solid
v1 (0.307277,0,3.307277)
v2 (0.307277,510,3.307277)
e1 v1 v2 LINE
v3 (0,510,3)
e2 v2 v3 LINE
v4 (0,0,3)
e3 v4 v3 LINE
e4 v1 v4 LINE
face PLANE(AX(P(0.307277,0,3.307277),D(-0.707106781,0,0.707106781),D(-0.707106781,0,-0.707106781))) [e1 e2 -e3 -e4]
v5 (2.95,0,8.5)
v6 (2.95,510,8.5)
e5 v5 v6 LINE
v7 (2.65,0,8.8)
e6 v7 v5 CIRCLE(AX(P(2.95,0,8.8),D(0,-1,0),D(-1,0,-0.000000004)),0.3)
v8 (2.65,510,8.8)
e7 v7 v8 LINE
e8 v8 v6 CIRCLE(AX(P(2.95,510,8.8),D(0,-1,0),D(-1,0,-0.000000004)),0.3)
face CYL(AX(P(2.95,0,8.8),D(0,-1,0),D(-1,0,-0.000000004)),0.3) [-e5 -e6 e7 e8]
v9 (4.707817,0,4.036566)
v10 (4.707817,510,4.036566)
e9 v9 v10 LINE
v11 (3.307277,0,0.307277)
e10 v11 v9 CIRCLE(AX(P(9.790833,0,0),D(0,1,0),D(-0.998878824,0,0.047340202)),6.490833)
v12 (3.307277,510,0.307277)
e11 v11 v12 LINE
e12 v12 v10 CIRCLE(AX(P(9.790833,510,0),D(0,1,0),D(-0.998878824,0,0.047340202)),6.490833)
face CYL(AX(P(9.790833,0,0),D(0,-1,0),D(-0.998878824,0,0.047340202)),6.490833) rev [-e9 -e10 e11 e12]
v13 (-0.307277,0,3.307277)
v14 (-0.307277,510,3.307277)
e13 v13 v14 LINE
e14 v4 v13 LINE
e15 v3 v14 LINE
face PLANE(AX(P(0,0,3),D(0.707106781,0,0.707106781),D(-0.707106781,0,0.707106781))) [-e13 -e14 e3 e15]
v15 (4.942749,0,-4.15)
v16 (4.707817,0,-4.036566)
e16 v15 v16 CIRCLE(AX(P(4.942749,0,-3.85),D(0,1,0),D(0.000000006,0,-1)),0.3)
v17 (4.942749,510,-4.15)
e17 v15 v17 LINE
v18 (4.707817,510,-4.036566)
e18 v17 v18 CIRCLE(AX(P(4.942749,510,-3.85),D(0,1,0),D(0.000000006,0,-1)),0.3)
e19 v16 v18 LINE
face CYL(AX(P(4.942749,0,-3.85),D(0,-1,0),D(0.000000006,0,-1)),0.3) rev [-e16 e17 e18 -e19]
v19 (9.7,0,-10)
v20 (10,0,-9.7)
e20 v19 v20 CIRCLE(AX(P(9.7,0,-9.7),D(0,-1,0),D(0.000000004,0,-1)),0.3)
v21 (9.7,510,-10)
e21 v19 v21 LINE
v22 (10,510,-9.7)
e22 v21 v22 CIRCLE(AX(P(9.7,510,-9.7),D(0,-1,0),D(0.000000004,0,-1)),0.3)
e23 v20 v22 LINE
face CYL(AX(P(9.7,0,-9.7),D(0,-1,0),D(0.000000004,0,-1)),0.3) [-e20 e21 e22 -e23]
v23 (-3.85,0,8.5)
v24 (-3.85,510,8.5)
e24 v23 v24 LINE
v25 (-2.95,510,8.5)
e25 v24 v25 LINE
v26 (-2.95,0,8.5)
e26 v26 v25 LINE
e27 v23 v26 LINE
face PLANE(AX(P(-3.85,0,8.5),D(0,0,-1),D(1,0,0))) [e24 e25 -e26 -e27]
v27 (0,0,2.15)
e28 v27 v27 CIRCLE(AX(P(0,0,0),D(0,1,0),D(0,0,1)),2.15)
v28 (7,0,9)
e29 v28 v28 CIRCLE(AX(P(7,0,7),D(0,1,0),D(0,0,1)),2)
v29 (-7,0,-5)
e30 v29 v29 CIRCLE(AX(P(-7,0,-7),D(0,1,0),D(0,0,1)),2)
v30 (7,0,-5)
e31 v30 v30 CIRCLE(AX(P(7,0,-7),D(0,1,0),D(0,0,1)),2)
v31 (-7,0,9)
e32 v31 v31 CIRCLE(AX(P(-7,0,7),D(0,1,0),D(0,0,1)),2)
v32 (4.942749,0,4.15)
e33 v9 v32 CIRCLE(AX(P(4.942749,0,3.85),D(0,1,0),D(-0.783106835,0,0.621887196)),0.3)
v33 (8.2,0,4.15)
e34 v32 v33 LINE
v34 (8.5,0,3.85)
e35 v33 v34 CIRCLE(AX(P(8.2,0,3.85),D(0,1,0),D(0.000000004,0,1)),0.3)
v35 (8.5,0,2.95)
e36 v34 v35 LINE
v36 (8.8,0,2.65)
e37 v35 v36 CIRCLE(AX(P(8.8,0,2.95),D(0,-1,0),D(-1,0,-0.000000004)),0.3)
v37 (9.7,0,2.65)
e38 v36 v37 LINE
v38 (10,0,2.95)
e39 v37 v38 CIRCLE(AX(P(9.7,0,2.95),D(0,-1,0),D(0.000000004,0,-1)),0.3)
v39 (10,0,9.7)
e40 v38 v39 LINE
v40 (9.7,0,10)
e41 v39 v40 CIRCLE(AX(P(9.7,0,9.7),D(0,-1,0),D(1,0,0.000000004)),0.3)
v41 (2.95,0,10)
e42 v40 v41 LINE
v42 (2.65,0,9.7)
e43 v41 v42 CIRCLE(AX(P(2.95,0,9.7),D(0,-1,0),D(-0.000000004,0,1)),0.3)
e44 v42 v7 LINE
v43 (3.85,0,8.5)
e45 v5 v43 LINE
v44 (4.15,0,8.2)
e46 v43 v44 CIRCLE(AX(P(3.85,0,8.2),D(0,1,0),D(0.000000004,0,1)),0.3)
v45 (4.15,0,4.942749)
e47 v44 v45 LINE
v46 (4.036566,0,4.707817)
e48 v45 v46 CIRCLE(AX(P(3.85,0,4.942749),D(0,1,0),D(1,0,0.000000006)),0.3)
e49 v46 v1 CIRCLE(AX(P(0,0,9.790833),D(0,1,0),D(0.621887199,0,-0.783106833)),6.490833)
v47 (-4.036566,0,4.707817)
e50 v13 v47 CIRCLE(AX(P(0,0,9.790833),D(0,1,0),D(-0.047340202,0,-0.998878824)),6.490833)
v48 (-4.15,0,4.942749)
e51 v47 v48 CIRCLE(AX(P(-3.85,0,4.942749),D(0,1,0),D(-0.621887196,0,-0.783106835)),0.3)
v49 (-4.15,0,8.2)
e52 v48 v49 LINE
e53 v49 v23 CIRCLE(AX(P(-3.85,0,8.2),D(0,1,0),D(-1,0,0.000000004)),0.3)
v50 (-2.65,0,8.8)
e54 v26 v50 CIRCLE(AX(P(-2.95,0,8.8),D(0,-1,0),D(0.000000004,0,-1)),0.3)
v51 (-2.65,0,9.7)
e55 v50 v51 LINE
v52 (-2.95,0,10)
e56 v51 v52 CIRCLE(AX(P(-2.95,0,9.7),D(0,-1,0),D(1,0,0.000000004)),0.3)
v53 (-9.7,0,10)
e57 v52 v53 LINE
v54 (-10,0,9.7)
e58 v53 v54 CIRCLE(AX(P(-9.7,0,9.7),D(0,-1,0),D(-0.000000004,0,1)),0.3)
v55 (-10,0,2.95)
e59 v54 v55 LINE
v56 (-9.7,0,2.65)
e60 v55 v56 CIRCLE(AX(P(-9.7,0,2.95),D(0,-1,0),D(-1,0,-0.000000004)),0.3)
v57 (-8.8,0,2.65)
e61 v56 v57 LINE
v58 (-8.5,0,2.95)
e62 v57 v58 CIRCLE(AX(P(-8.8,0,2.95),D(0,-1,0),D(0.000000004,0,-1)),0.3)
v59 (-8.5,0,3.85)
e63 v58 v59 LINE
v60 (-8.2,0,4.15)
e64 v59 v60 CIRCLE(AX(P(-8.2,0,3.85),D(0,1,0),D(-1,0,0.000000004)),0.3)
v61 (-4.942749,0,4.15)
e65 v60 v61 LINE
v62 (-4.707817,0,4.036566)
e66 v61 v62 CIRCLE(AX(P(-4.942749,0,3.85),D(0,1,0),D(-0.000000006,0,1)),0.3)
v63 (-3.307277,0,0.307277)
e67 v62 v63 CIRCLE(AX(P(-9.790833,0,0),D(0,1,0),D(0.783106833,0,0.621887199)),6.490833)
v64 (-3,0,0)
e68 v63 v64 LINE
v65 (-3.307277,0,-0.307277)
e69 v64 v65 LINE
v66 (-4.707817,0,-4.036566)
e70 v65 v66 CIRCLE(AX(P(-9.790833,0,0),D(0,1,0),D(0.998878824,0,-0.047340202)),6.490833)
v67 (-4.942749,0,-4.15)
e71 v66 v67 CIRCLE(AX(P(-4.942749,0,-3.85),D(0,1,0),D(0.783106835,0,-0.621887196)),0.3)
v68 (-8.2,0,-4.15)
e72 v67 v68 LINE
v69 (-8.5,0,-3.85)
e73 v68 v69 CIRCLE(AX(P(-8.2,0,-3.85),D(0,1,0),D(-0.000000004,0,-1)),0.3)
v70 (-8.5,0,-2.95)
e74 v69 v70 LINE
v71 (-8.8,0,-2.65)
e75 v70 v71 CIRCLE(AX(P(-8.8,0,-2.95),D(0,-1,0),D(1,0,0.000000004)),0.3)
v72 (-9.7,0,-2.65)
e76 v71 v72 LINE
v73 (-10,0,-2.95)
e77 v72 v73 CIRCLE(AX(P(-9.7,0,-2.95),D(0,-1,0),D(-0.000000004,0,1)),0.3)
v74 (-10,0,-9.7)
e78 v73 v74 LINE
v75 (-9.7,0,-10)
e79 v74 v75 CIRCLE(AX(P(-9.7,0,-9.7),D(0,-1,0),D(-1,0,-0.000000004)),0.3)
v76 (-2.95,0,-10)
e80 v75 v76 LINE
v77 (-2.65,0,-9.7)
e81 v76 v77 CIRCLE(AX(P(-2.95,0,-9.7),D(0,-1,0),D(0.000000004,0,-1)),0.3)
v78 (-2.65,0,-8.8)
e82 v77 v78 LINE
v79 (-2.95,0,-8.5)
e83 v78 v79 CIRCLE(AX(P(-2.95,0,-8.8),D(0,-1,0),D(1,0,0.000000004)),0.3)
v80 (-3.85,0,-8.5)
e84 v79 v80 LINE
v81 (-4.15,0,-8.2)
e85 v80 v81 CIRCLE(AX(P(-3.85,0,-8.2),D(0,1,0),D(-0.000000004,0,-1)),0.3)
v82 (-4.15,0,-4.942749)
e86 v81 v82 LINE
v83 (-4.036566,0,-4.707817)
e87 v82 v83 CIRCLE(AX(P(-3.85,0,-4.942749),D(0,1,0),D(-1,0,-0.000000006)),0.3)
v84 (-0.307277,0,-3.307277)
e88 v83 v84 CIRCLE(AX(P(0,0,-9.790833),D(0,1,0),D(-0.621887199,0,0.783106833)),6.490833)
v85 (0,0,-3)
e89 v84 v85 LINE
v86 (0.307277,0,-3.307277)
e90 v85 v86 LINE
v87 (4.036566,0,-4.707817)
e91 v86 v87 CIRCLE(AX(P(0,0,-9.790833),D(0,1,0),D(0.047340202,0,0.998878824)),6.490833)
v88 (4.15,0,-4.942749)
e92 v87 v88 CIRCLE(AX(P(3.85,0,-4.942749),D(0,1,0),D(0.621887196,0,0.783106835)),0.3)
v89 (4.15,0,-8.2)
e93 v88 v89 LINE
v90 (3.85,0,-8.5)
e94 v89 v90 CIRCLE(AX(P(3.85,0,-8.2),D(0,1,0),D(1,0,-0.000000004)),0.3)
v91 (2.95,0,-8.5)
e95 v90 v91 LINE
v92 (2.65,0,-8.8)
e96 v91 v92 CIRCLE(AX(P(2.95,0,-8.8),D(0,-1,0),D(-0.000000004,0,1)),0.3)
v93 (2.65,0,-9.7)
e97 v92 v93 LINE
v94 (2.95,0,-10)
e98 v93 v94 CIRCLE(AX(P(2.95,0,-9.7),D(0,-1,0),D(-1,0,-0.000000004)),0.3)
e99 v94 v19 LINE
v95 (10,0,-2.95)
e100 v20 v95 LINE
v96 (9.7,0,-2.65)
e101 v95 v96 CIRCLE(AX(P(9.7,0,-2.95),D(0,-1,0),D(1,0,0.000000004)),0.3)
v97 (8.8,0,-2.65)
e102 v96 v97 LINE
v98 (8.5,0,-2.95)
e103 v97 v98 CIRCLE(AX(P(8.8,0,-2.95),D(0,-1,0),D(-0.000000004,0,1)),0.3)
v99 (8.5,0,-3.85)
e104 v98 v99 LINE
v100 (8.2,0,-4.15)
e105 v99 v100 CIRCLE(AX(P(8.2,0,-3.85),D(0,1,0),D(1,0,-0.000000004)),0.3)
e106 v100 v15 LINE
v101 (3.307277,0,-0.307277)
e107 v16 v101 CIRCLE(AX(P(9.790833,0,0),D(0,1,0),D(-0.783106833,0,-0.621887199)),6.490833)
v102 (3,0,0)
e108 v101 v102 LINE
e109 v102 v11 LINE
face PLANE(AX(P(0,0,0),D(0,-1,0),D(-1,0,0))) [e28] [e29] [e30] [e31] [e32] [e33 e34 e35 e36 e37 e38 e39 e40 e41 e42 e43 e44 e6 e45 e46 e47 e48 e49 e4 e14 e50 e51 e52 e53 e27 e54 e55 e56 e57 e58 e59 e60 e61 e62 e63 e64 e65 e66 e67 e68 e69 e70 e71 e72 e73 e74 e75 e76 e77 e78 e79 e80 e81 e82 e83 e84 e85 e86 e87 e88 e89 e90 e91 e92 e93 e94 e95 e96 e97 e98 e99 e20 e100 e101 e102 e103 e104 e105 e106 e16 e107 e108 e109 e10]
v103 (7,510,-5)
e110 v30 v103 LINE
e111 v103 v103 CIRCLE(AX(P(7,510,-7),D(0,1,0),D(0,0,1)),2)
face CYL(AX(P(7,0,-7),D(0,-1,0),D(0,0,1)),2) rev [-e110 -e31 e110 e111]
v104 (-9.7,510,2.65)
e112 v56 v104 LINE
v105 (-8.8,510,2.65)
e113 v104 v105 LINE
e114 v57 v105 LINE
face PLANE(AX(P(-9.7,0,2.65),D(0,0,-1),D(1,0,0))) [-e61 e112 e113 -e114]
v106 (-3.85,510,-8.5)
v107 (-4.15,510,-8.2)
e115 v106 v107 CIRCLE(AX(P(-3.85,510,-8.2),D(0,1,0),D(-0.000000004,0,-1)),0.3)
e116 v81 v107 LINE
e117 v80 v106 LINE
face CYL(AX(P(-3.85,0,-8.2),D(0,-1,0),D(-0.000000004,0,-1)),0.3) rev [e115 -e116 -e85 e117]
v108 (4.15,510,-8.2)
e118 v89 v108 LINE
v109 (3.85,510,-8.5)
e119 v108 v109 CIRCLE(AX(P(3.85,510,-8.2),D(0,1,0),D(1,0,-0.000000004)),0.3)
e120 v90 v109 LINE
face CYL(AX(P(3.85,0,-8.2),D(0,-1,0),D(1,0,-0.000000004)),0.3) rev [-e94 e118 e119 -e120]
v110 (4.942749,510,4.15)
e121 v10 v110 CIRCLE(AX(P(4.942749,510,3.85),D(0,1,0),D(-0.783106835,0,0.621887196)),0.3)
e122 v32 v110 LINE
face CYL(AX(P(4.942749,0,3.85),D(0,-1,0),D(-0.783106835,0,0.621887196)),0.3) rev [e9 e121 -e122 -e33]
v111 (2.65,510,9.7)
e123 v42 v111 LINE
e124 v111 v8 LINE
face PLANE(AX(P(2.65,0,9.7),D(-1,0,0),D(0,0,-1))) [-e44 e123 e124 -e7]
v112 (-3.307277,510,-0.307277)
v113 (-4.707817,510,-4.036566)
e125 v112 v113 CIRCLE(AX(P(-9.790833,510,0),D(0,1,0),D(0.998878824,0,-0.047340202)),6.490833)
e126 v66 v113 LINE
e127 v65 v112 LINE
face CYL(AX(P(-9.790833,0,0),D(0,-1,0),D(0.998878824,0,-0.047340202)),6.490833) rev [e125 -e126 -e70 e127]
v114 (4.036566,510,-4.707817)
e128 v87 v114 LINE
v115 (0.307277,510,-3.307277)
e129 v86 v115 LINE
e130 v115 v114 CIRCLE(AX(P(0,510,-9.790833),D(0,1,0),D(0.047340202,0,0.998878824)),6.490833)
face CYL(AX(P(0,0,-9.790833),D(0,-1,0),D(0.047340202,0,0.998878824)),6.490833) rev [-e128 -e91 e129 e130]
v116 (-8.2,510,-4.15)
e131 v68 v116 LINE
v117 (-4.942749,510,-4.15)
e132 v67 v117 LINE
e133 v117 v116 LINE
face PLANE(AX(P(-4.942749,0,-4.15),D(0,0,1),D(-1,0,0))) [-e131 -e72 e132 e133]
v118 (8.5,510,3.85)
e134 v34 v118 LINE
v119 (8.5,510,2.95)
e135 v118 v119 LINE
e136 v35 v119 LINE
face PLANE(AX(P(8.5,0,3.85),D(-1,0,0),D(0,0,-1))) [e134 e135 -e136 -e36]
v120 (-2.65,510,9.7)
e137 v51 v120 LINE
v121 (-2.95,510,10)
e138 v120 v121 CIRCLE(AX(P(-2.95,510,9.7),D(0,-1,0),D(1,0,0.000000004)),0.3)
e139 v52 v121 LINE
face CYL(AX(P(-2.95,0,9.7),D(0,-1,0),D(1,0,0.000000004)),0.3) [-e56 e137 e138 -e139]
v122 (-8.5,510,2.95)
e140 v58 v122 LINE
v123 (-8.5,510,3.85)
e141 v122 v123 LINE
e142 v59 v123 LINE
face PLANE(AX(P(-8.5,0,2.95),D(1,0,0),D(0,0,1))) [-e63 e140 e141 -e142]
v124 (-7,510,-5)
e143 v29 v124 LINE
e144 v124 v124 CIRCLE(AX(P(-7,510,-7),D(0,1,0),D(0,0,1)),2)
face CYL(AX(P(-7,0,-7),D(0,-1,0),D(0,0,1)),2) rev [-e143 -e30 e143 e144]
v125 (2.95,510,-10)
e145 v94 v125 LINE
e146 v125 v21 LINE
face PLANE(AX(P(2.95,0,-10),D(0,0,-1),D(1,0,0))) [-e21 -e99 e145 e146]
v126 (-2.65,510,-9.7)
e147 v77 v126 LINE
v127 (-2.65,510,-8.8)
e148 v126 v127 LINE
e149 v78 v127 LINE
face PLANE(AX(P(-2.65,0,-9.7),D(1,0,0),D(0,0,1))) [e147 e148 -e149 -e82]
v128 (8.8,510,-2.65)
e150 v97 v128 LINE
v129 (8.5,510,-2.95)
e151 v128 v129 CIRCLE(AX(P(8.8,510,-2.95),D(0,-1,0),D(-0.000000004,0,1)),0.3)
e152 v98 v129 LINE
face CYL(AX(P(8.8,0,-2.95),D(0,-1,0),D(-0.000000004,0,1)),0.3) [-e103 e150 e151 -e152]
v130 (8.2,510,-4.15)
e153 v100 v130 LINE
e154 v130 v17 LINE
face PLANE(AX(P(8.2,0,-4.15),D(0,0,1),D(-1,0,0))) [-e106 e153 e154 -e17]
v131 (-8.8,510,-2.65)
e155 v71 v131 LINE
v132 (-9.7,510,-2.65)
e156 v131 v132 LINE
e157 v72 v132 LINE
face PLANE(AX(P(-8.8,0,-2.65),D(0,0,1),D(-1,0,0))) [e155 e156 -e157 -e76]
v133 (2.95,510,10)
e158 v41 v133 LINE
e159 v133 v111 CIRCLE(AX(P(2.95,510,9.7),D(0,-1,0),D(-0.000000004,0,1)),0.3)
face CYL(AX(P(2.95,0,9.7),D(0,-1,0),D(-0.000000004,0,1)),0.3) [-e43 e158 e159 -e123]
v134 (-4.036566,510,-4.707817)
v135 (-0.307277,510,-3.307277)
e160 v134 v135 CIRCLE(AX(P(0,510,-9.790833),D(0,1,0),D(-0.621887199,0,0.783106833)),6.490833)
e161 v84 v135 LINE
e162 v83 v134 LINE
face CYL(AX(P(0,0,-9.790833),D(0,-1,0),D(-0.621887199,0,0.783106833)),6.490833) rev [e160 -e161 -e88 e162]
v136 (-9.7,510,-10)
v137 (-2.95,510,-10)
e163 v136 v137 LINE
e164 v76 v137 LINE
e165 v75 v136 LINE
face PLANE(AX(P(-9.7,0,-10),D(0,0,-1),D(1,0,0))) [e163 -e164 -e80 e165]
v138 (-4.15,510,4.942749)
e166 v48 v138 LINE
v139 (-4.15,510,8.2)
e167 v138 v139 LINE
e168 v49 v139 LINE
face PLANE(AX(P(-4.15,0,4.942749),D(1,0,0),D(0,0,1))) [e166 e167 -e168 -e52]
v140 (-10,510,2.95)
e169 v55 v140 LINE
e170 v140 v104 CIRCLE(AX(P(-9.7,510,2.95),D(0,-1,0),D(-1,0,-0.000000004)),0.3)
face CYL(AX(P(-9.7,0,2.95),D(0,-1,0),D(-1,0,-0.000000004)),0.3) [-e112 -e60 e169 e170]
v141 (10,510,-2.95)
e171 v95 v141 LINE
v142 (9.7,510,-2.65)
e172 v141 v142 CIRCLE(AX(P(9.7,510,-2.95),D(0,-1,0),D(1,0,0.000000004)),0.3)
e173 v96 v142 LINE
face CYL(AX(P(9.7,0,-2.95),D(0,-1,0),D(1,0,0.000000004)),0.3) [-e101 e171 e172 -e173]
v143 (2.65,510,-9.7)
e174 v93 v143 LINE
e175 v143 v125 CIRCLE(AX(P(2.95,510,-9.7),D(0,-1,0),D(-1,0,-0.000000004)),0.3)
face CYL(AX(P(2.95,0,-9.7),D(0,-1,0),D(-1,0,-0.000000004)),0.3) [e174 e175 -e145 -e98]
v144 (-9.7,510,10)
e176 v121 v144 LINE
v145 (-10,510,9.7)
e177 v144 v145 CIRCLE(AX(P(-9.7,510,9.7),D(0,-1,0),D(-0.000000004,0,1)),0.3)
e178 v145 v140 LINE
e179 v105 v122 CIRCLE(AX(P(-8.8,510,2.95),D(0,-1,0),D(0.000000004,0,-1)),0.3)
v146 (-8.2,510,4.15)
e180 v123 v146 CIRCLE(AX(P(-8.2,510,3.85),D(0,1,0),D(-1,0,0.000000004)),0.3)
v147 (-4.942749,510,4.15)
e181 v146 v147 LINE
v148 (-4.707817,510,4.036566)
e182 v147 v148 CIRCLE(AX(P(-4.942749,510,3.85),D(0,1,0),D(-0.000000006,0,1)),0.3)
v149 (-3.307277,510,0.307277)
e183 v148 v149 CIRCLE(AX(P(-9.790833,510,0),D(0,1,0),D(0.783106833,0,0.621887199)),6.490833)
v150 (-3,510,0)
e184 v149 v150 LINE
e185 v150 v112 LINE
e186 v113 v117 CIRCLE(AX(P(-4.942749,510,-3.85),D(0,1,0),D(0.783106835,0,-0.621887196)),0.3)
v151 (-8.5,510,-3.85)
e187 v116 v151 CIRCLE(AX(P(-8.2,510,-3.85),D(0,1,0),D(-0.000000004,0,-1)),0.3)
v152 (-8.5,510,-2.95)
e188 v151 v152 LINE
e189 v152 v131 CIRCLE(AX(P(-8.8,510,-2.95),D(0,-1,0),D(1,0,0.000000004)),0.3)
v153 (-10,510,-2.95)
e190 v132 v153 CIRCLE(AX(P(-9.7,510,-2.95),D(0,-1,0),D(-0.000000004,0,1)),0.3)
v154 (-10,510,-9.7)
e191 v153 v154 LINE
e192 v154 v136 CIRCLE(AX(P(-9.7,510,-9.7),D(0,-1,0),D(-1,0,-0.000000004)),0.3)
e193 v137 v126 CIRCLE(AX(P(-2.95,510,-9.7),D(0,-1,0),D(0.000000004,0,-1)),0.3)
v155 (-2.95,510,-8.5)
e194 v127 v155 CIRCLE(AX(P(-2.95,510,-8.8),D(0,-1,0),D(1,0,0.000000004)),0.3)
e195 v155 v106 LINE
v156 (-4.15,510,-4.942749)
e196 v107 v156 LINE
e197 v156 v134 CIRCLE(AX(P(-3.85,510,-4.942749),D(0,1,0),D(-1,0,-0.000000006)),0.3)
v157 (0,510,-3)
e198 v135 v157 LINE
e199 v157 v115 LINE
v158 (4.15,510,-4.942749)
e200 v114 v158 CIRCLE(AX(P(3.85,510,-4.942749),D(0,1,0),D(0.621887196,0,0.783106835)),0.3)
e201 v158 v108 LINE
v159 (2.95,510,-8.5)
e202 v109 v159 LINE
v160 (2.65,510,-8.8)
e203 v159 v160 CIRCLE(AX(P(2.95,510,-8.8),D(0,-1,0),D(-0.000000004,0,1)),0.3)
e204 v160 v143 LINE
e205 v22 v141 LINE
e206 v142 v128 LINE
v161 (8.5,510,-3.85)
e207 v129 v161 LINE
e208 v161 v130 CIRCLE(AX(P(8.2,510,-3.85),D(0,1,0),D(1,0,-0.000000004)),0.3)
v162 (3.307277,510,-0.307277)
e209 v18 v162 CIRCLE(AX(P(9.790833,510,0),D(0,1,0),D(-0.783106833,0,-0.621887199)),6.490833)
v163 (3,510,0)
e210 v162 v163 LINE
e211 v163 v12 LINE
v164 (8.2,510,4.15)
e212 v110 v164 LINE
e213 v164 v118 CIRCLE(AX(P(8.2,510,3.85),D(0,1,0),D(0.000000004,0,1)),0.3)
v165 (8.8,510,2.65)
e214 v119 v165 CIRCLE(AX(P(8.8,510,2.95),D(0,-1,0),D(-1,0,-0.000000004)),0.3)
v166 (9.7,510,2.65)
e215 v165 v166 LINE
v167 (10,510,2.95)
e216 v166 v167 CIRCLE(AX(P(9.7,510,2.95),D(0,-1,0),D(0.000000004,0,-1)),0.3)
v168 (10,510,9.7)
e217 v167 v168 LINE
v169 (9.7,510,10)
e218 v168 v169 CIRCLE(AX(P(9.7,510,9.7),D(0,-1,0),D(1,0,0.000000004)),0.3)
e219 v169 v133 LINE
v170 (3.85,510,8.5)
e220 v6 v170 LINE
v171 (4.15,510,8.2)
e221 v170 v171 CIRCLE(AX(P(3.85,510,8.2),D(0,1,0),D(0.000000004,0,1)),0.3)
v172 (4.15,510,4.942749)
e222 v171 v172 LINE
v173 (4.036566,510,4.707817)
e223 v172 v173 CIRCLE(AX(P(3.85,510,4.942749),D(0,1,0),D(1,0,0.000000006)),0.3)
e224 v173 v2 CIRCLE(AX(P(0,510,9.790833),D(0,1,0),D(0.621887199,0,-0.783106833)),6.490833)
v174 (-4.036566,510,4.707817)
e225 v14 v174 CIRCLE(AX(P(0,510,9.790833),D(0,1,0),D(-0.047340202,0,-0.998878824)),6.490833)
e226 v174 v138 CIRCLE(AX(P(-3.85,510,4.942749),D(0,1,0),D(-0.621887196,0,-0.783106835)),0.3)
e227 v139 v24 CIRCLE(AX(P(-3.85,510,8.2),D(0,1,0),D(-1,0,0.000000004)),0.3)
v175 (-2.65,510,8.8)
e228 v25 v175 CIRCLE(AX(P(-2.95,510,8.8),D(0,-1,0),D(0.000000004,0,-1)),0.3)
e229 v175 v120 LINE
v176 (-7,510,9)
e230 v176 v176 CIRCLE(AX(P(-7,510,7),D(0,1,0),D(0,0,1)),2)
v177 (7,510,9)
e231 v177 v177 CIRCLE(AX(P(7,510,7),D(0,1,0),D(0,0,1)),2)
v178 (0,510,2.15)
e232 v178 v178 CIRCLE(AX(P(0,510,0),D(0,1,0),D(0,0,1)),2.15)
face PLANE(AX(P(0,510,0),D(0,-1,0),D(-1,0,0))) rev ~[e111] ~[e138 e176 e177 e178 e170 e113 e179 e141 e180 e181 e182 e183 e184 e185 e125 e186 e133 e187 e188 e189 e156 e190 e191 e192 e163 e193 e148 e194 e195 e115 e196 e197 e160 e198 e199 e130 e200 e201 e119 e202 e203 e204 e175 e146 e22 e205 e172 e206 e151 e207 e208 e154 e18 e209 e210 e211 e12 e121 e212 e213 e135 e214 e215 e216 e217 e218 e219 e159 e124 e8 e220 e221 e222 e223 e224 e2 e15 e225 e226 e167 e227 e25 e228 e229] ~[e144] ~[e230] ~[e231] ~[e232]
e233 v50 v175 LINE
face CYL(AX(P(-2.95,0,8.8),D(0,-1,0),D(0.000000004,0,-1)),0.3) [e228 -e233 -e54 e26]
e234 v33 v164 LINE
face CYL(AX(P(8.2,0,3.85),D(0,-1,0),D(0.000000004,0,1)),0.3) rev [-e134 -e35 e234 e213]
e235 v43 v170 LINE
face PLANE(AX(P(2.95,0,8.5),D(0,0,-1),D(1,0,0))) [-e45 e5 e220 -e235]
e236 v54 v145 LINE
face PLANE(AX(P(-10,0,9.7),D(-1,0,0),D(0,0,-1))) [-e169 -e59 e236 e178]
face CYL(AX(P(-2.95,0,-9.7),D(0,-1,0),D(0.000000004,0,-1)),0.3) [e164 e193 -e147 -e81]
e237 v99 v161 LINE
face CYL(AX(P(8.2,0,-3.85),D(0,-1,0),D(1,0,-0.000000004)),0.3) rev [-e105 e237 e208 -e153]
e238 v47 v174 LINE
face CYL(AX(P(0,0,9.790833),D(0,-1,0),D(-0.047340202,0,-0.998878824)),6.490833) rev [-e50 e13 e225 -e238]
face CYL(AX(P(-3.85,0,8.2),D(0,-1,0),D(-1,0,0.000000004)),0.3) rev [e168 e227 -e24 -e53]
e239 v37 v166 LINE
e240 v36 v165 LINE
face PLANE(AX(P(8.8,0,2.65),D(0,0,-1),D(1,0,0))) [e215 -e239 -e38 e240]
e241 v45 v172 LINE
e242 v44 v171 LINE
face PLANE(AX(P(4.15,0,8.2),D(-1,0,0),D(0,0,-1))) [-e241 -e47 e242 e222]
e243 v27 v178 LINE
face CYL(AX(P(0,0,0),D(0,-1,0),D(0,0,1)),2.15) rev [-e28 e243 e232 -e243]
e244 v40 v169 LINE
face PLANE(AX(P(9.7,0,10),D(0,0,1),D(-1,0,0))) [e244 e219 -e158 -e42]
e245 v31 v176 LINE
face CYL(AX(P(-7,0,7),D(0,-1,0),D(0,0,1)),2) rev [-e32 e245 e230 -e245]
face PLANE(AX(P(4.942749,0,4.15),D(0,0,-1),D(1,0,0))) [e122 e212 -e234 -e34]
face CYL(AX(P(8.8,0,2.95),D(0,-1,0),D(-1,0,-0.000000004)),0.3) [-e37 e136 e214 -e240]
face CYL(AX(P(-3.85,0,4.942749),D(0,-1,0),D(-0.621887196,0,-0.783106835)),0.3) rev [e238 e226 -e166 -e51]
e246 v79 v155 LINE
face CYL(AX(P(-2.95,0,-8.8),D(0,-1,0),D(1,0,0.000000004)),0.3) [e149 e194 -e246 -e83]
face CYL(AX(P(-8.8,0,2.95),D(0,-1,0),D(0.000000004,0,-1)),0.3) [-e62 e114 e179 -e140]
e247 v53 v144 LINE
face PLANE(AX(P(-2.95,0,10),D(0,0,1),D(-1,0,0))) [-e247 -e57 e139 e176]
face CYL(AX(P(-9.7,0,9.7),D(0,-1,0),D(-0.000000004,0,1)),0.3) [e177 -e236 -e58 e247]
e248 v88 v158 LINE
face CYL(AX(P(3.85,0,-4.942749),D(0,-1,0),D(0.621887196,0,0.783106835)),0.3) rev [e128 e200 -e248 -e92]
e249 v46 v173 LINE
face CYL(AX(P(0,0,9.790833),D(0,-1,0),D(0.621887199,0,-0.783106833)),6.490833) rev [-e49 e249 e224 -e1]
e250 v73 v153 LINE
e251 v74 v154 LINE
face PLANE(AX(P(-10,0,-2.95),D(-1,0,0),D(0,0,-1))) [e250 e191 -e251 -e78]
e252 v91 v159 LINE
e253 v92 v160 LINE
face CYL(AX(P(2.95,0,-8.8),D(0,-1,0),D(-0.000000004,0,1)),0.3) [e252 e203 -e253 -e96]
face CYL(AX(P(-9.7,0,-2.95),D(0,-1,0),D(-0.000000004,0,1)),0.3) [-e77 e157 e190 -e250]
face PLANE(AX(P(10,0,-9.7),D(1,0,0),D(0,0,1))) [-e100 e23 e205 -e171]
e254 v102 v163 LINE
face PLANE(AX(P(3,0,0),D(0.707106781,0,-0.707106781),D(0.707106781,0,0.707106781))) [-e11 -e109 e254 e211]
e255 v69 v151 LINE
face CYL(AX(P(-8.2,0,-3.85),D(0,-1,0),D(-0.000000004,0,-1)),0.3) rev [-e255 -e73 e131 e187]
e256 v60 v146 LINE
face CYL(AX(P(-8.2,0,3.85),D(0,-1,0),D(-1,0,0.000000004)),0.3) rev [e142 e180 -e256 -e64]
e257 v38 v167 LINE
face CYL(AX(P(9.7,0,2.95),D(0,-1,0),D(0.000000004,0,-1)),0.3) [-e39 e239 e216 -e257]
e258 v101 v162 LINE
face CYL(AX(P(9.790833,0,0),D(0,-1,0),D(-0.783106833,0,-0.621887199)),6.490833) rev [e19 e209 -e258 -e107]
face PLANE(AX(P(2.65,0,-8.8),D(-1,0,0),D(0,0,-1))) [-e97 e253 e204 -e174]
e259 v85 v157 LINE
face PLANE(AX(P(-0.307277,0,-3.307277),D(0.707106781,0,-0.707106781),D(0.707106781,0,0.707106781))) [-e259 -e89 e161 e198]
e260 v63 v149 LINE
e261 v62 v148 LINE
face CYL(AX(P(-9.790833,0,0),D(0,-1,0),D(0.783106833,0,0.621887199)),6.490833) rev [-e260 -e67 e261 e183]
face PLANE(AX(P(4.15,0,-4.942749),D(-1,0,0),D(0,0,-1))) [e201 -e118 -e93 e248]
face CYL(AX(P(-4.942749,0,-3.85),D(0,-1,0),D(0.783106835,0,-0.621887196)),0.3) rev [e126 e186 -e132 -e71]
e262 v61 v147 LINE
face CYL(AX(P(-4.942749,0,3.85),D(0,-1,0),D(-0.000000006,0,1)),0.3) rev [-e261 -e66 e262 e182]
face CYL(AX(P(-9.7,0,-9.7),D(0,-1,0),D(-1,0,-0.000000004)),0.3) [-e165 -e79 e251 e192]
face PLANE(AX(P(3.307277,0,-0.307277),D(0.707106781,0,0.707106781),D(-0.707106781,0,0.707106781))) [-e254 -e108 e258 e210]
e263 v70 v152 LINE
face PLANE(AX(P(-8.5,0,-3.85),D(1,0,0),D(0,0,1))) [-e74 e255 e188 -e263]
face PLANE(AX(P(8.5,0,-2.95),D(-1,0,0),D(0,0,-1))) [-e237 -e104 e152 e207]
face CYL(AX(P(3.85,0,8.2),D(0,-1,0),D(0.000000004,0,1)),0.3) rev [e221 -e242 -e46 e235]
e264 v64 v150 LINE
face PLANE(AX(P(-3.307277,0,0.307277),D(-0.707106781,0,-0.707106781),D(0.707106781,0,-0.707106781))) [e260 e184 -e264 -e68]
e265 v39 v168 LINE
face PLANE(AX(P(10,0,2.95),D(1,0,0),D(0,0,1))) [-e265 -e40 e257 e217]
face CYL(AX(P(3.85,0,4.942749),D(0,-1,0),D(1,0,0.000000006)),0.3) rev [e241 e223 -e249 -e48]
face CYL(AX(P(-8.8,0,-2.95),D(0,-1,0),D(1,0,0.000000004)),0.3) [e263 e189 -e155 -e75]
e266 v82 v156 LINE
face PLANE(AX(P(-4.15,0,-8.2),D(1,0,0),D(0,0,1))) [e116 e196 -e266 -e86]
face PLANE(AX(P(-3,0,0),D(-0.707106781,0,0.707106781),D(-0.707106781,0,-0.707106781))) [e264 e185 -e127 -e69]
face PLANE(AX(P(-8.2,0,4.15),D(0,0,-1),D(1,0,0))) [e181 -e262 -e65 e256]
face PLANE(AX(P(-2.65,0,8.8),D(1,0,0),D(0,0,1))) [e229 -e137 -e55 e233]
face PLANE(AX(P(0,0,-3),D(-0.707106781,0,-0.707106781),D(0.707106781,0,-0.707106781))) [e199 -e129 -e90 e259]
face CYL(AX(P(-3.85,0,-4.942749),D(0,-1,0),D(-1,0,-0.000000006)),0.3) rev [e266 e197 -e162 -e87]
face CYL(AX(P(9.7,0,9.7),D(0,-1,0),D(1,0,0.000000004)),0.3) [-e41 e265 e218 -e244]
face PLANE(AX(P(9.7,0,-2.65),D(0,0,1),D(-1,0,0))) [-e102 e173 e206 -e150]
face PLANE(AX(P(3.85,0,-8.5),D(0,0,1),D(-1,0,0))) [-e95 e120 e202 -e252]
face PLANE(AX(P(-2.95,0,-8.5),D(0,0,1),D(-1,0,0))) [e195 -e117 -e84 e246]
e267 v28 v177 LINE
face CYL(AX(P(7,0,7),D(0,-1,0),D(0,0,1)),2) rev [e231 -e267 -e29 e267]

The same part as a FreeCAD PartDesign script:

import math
import FreeCAD as App
import Part
import Sketcher
from FreeCAD import Vector

doc = App.newDocument("Part")
params = doc.addObject("Spreadsheet::Sheet", "Params")
for row, (alias, value) in enumerate([
    ("sketch1_diameter", "4 mm"),
    ("sketch1_diameter2", "4.3 mm"),
    ("sketch1_radius", "0.3 mm"),
    ("sketch1_width", "0.9 mm"),
    ("sketch1_width2", "6.75 mm"),
    ("pad1_length", "510 mm"),
], start=1):
    params.set(f"A{row}", alias)
    params.set(f"B{row}", "=" + value)
    params.setAlias(f"B{row}", alias)

body = doc.addObject("PartDesign::Body", "Body")

sketch1 = body.newObject("Sketcher::SketchObject", "Sketch")
sketch1.AttachmentSupport = (doc.getObject("XZ_Plane"), [""])
sketch1.MapMode = "FlatFace"
sketch1.addGeometry(Part.LineSegment(Vector(4.15, -8.2, 0), Vector(4.15, -4.94, 0)), False)
sketch1.addGeometry(Part.ArcOfCircle(Part.Circle(Vector(3.85, -4.94, 0), Vector(0, 0, 1), 0.3), math.radians(0), math.radians(52)), False)
sketch1.addGeometry(Part.ArcOfCircle(Part.Circle(Vector(0, -9.79, 0), Vector(0, 0, 1), 6.49), math.radians(52), math.radians(87)), False)
sketch1.addGeometry(Part.LineSegment(Vector(0.31, -3.31, 0), Vector(0, -3, 0)), False)
sketch1.addGeometry(Part.LineSegment(Vector(0, -3, 0), Vector(-0.31, -3.31, 0)), False)
sketch1.addGeometry(Part.ArcOfCircle(Part.Circle(Vector(0, -9.79, 0), Vector(0, 0, 1), 6.49), math.radians(93), math.radians(128)), False)
sketch1.addGeometry(Part.ArcOfCircle(Part.Circle(Vector(-3.85, -4.94, 0), Vector(0, 0, 1), 0.3), math.radians(128), math.radians(180)), False)
sketch1.addGeometry(Part.LineSegment(Vector(-4.15, -4.94, 0), Vector(-4.15, -8.2, 0)), False)
sketch1.addGeometry(Part.ArcOfCircle(Part.Circle(Vector(-3.85, -8.2, 0), Vector(0, 0, 1), 0.3), math.radians(-180), math.radians(-90)), False)
sketch1.addGeometry(Part.LineSegment(Vector(-3.85, -8.5, 0), Vector(-2.95, -8.5, 0)), False)
sketch1.addGeometry(Part.ArcOfCircle(Part.Circle(Vector(-2.95, -8.8, 0), Vector(0, 0, 1), 0.3), math.radians(0), math.radians(90)), False)
sketch1.addGeometry(Part.LineSegment(Vector(-2.65, -8.8, 0), Vector(-2.65, -9.7, 0)), False)
sketch1.addGeometry(Part.ArcOfCircle(Part.Circle(Vector(-2.95, -9.7, 0), Vector(0, 0, 1), 0.3), math.radians(-90), math.radians(0)), False)
sketch1.addGeometry(Part.LineSegment(Vector(-2.95, -10, 0), Vector(-9.7, -10, 0)), False)
sketch1.addGeometry(Part.ArcOfCircle(Part.Circle(Vector(-9.7, -9.7, 0), Vector(0, 0, 1), 0.3), math.radians(-180), math.radians(-90)), False)
sketch1.addGeometry(Part.LineSegment(Vector(-10, -9.7, 0), Vector(-10, -2.95, 0)), False)
sketch1.addGeometry(Part.ArcOfCircle(Part.Circle(Vector(-9.7, -2.95, 0), Vector(0, 0, 1), 0.3), math.radians(90), math.radians(180)), False)
sketch1.addGeometry(Part.LineSegment(Vector(-9.7, -2.65, 0), Vector(-8.8, -2.65, 0)), False)
sketch1.addGeometry(Part.ArcOfCircle(Part.Circle(Vector(-8.8, -2.95, 0), Vector(0, 0, 1), 0.3), math.radians(0), math.radians(90)), False)
sketch1.addGeometry(Part.LineSegment(Vector(-8.5, -2.95, 0), Vector(-8.5, -3.85, 0)), False)
sketch1.addGeometry(Part.ArcOfCircle(Part.Circle(Vector(-8.2, -3.85, 0), Vector(0, 0, 1), 0.3), math.radians(-180), math.radians(-90)), False)
sketch1.addGeometry(Part.LineSegment(Vector(-8.2, -4.15, 0), Vector(-4.94, -4.15, 0)), False)
sketch1.addGeometry(Part.ArcOfCircle(Part.Circle(Vector(-4.94, -3.85, 0), Vector(0, 0, 1), 0.3), math.radians(-90), math.radians(-38)), False)
sketch1.addGeometry(Part.ArcOfCircle(Part.Circle(Vector(-9.79, 0, 0), Vector(0, 0, 1), 6.49), math.radians(-38), math.radians(-3)), False)
sketch1.addGeometry(Part.LineSegment(Vector(-3.31, -0.31, 0), Vector(-3, 0, 0)), False)
sketch1.addGeometry(Part.LineSegment(Vector(-3, 0, 0), Vector(-3.31, 0.31, 0)), False)
sketch1.addGeometry(Part.ArcOfCircle(Part.Circle(Vector(-9.79, 0, 0), Vector(0, 0, 1), 6.49), math.radians(3), math.radians(38)), False)
sketch1.addGeometry(Part.ArcOfCircle(Part.Circle(Vector(-4.94, 3.85, 0), Vector(0, 0, 1), 0.3), math.radians(38), math.radians(90)), False)
sketch1.addGeometry(Part.LineSegment(Vector(-4.94, 4.15, 0), Vector(-8.2, 4.15, 0)), False)
sketch1.addGeometry(Part.ArcOfCircle(Part.Circle(Vector(-8.2, 3.85, 0), Vector(0, 0, 1), 0.3), math.radians(90), math.radians(180)), False)
sketch1.addGeometry(Part.LineSegment(Vector(-8.5, 3.85, 0), Vector(-8.5, 2.95, 0)), False)
sketch1.addGeometry(Part.ArcOfCircle(Part.Circle(Vector(-8.8, 2.95, 0), Vector(0, 0, 1), 0.3), math.radians(-90), math.radians(0)), False)
sketch1.addGeometry(Part.LineSegment(Vector(-8.8, 2.65, 0), Vector(-9.7, 2.65, 0)), False)
sketch1.addGeometry(Part.ArcOfCircle(Part.Circle(Vector(-9.7, 2.95, 0), Vector(0, 0, 1), 0.3), math.radians(-180), math.radians(-90)), False)
sketch1.addGeometry(Part.LineSegment(Vector(-10, 2.95, 0), Vector(-10, 9.7, 0)), False)
sketch1.addGeometry(Part.ArcOfCircle(Part.Circle(Vector(-9.7, 9.7, 0), Vector(0, 0, 1), 0.3), math.radians(90), math.radians(180)), False)
sketch1.addGeometry(Part.LineSegment(Vector(-9.7, 10, 0), Vector(-2.95, 10, 0)), False)
sketch1.addGeometry(Part.ArcOfCircle(Part.Circle(Vector(-2.95, 9.7, 0), Vector(0, 0, 1), 0.3), math.radians(0), math.radians(90)), False)
sketch1.addGeometry(Part.LineSegment(Vector(-2.65, 9.7, 0), Vector(-2.65, 8.8, 0)), False)
sketch1.addGeometry(Part.ArcOfCircle(Part.Circle(Vector(-2.95, 8.8, 0), Vector(0, 0, 1), 0.3), math.radians(-90), math.radians(0)), False)
sketch1.addGeometry(Part.LineSegment(Vector(-2.95, 8.5, 0), Vector(-3.85, 8.5, 0)), False)
sketch1.addGeometry(Part.ArcOfCircle(Part.Circle(Vector(-3.85, 8.2, 0), Vector(0, 0, 1), 0.3), math.radians(90), math.radians(180)), False)
sketch1.addGeometry(Part.LineSegment(Vector(-4.15, 8.2, 0), Vector(-4.15, 4.94, 0)), False)
sketch1.addGeometry(Part.ArcOfCircle(Part.Circle(Vector(-3.85, 4.94, 0), Vector(0, 0, 1), 0.3), math.radians(180), math.radians(232)), False)
sketch1.addGeometry(Part.ArcOfCircle(Part.Circle(Vector(0, 9.79, 0), Vector(0, 0, 1), 6.49), math.radians(-128), math.radians(-93)), False)
sketch1.addGeometry(Part.LineSegment(Vector(-0.31, 3.31, 0), Vector(0, 3, 0)), False)
sketch1.addGeometry(Part.LineSegment(Vector(0, 3, 0), Vector(0.31, 3.31, 0)), False)
sketch1.addGeometry(Part.ArcOfCircle(Part.Circle(Vector(0, 9.79, 0), Vector(0, 0, 1), 6.49), math.radians(-87), math.radians(-52)), False)
sketch1.addGeometry(Part.ArcOfCircle(Part.Circle(Vector(3.85, 4.94, 0), Vector(0, 0, 1), 0.3), math.radians(-52), math.radians(0)), False)
sketch1.addGeometry(Part.LineSegment(Vector(4.15, 4.94, 0), Vector(4.15, 8.2, 0)), False)
sketch1.addGeometry(Part.ArcOfCircle(Part.Circle(Vector(3.85, 8.2, 0), Vector(0, 0, 1), 0.3), math.radians(0), math.radians(90)), False)
sketch1.addGeometry(Part.LineSegment(Vector(3.85, 8.5, 0), Vector(2.95, 8.5, 0)), False)
sketch1.addGeometry(Part.ArcOfCircle(Part.Circle(Vector(2.95, 8.8, 0), Vector(0, 0, 1), 0.3), math.radians(-180), math.radians(-90)), False)
sketch1.addGeometry(Part.LineSegment(Vector(2.65, 8.8, 0), Vector(2.65, 9.7, 0)), False)
sketch1.addGeometry(Part.ArcOfCircle(Part.Circle(Vector(2.95, 9.7, 0), Vector(0, 0, 1), 0.3), math.radians(90), math.radians(180)), False)
sketch1.addGeometry(Part.LineSegment(Vector(2.95, 10, 0), Vector(9.7, 10, 0)), False)
sketch1.addGeometry(Part.ArcOfCircle(Part.Circle(Vector(9.7, 9.7, 0), Vector(0, 0, 1), 0.3), math.radians(0), math.radians(90)), False)
sketch1.addGeometry(Part.LineSegment(Vector(10, 9.7, 0), Vector(10, 2.95, 0)), False)
sketch1.addGeometry(Part.ArcOfCircle(Part.Circle(Vector(9.7, 2.95, 0), Vector(0, 0, 1), 0.3), math.radians(-90), math.radians(0)), False)
sketch1.addGeometry(Part.LineSegment(Vector(9.7, 2.65, 0), Vector(8.8, 2.65, 0)), False)
sketch1.addGeometry(Part.ArcOfCircle(Part.Circle(Vector(8.8, 2.95, 0), Vector(0, 0, 1), 0.3), math.radians(-180), math.radians(-90)), False)
sketch1.addGeometry(Part.LineSegment(Vector(8.5, 2.95, 0), Vector(8.5, 3.85, 0)), False)
sketch1.addGeometry(Part.ArcOfCircle(Part.Circle(Vector(8.2, 3.85, 0), Vector(0, 0, 1), 0.3), math.radians(0), math.radians(90)), False)
sketch1.addGeometry(Part.LineSegment(Vector(8.2, 4.15, 0), Vector(4.94, 4.15, 0)), False)
sketch1.addGeometry(Part.ArcOfCircle(Part.Circle(Vector(4.94, 3.85, 0), Vector(0, 0, 1), 0.3), math.radians(90), math.radians(142)), False)
sketch1.addGeometry(Part.ArcOfCircle(Part.Circle(Vector(9.79, 0, 0), Vector(0, 0, 1), 6.49), math.radians(142), math.radians(177)), False)
sketch1.addGeometry(Part.LineSegment(Vector(3.31, 0.31, 0), Vector(3, 0, 0)), False)
sketch1.addGeometry(Part.LineSegment(Vector(3, 0, 0), Vector(3.31, -0.31, 0)), False)
sketch1.addGeometry(Part.ArcOfCircle(Part.Circle(Vector(9.79, 0, 0), Vector(0, 0, 1), 6.49), math.radians(-177), math.radians(-142)), False)
sketch1.addGeometry(Part.ArcOfCircle(Part.Circle(Vector(4.94, -3.85, 0), Vector(0, 0, 1), 0.3), math.radians(-142), math.radians(-90)), False)
sketch1.addGeometry(Part.LineSegment(Vector(4.94, -4.15, 0), Vector(8.2, -4.15, 0)), False)
sketch1.addGeometry(Part.ArcOfCircle(Part.Circle(Vector(8.2, -3.85, 0), Vector(0, 0, 1), 0.3), math.radians(-90), math.radians(0)), False)
sketch1.addGeometry(Part.LineSegment(Vector(8.5, -3.85, 0), Vector(8.5, -2.95, 0)), False)
sketch1.addGeometry(Part.ArcOfCircle(Part.Circle(Vector(8.8, -2.95, 0), Vector(0, 0, 1), 0.3), math.radians(90), math.radians(180)), False)
sketch1.addGeometry(Part.LineSegment(Vector(8.8, -2.65, 0), Vector(9.7, -2.65, 0)), False)
sketch1.addGeometry(Part.ArcOfCircle(Part.Circle(Vector(9.7, -2.95, 0), Vector(0, 0, 1), 0.3), math.radians(0), math.radians(90)), False)
sketch1.addGeometry(Part.LineSegment(Vector(10, -2.95, 0), Vector(10, -9.7, 0)), False)
sketch1.addGeometry(Part.ArcOfCircle(Part.Circle(Vector(9.7, -9.7, 0), Vector(0, 0, 1), 0.3), math.radians(-90), math.radians(0)), False)
sketch1.addGeometry(Part.LineSegment(Vector(9.7, -10, 0), Vector(2.95, -10, 0)), False)
sketch1.addGeometry(Part.ArcOfCircle(Part.Circle(Vector(2.95, -9.7, 0), Vector(0, 0, 1), 0.3), math.radians(-180), math.radians(-90)), False)
sketch1.addGeometry(Part.LineSegment(Vector(2.65, -9.7, 0), Vector(2.65, -8.8, 0)), False)
sketch1.addGeometry(Part.ArcOfCircle(Part.Circle(Vector(2.95, -8.8, 0), Vector(0, 0, 1), 0.3), math.radians(90), math.radians(180)), False)
sketch1.addGeometry(Part.LineSegment(Vector(2.95, -8.5, 0), Vector(3.85, -8.5, 0)), False)
sketch1.addGeometry(Part.ArcOfCircle(Part.Circle(Vector(3.85, -8.2, 0), Vector(0, 0, 1), 0.3), math.radians(-90), math.radians(0)), False)
sketch1.addGeometry(Part.Circle(Vector(7, 7, 0), Vector(0, 0, 1), 2), False)
sketch1.addGeometry(Part.Circle(Vector(-7, 7, 0), Vector(0, 0, 1), 2), False)
sketch1.addGeometry(Part.Circle(Vector(7, -7, 0), Vector(0, 0, 1), 2), False)
sketch1.addGeometry(Part.Circle(Vector(0, 0, 0), Vector(0, 0, 1), 2.15), False)
sketch1.addGeometry(Part.Circle(Vector(-7, -7, 0), Vector(0, 0, 1), 2), False)
sketch1.addConstraint(Sketcher.Constraint("Tangent", 0, 2, 1, 1))
sketch1.addConstraint(Sketcher.Constraint("Tangent", 1, 2, 2, 1))
sketch1.addConstraint(Sketcher.Constraint("Coincident", 2, 2, 3, 1))
sketch1.addConstraint(Sketcher.Constraint("Coincident", 3, 2, 4, 1))
sketch1.addConstraint(Sketcher.Constraint("Coincident", 4, 2, 5, 1))
sketch1.addConstraint(Sketcher.Constraint("Tangent", 5, 2, 6, 1))
sketch1.addConstraint(Sketcher.Constraint("Tangent", 6, 2, 7, 1))
sketch1.addConstraint(Sketcher.Constraint("Tangent", 7, 2, 8, 1))
sketch1.addConstraint(Sketcher.Constraint("Tangent", 8, 2, 9, 1))
sketch1.addConstraint(Sketcher.Constraint("Tangent", 9, 2, 10, 2))
sketch1.addConstraint(Sketcher.Constraint("Tangent", 10, 1, 11, 1))
sketch1.addConstraint(Sketcher.Constraint("Tangent", 11, 2, 12, 2))
sketch1.addConstraint(Sketcher.Constraint("Tangent", 12, 1, 13, 1))
sketch1.addConstraint(Sketcher.Constraint("Tangent", 13, 2, 14, 2))
sketch1.addConstraint(Sketcher.Constraint("Tangent", 14, 1, 15, 1))
sketch1.addConstraint(Sketcher.Constraint("Tangent", 15, 2, 16, 2))
sketch1.addConstraint(Sketcher.Constraint("Tangent", 16, 1, 17, 1))
sketch1.addConstraint(Sketcher.Constraint("Tangent", 17, 2, 18, 2))
sketch1.addConstraint(Sketcher.Constraint("Tangent", 18, 1, 19, 1))
sketch1.addConstraint(Sketcher.Constraint("Tangent", 19, 2, 20, 1))
sketch1.addConstraint(Sketcher.Constraint("Tangent", 20, 2, 21, 1))
sketch1.addConstraint(Sketcher.Constraint("Tangent", 21, 2, 22, 1))
sketch1.addConstraint(Sketcher.Constraint("Tangent", 22, 2, 23, 1))
sketch1.addConstraint(Sketcher.Constraint("Coincident", 23, 2, 24, 1))
sketch1.addConstraint(Sketcher.Constraint("Coincident", 24, 2, 25, 1))
sketch1.addConstraint(Sketcher.Constraint("Coincident", 25, 2, 26, 1))
sketch1.addConstraint(Sketcher.Constraint("Tangent", 26, 2, 27, 1))
sketch1.addConstraint(Sketcher.Constraint("Tangent", 27, 2, 28, 1))
sketch1.addConstraint(Sketcher.Constraint("Tangent", 28, 2, 29, 1))
sketch1.addConstraint(Sketcher.Constraint("Tangent", 29, 2, 30, 1))
sketch1.addConstraint(Sketcher.Constraint("Tangent", 30, 2, 31, 2))
sketch1.addConstraint(Sketcher.Constraint("Tangent", 31, 1, 32, 1))
sketch1.addConstraint(Sketcher.Constraint("Tangent", 32, 2, 33, 2))
sketch1.addConstraint(Sketcher.Constraint("Tangent", 33, 1, 34, 1))
sketch1.addConstraint(Sketcher.Constraint("Tangent", 34, 2, 35, 2))
sketch1.addConstraint(Sketcher.Constraint("Tangent", 35, 1, 36, 1))
sketch1.addConstraint(Sketcher.Constraint("Tangent", 36, 2, 37, 2))
sketch1.addConstraint(Sketcher.Constraint("Tangent", 37, 1, 38, 1))
sketch1.addConstraint(Sketcher.Constraint("Tangent", 38, 2, 39, 2))
sketch1.addConstraint(Sketcher.Constraint("Tangent", 39, 1, 40, 1))
sketch1.addConstraint(Sketcher.Constraint("Tangent", 40, 2, 41, 1))
sketch1.addConstraint(Sketcher.Constraint("Tangent", 41, 2, 42, 1))
sketch1.addConstraint(Sketcher.Constraint("Tangent", 42, 2, 43, 1))
sketch1.addConstraint(Sketcher.Constraint("Tangent", 43, 2, 44, 1))
sketch1.addConstraint(Sketcher.Constraint("Coincident", 44, 2, 45, 1))
sketch1.addConstraint(Sketcher.Constraint("Coincident", 45, 2, 46, 1))
sketch1.addConstraint(Sketcher.Constraint("Coincident", 46, 2, 47, 1))
sketch1.addConstraint(Sketcher.Constraint("Tangent", 47, 2, 48, 1))
sketch1.addConstraint(Sketcher.Constraint("Tangent", 48, 2, 49, 1))
sketch1.addConstraint(Sketcher.Constraint("Tangent", 49, 2, 50, 1))
sketch1.addConstraint(Sketcher.Constraint("Tangent", 50, 2, 51, 1))
sketch1.addConstraint(Sketcher.Constraint("Tangent", 51, 2, 52, 2))
sketch1.addConstraint(Sketcher.Constraint("Tangent", 52, 1, 53, 1))
sketch1.addConstraint(Sketcher.Constraint("Tangent", 53, 2, 54, 2))
sketch1.addConstraint(Sketcher.Constraint("Tangent", 54, 1, 55, 1))
sketch1.addConstraint(Sketcher.Constraint("Tangent", 55, 2, 56, 2))
sketch1.addConstraint(Sketcher.Constraint("Tangent", 56, 1, 57, 1))
sketch1.addConstraint(Sketcher.Constraint("Tangent", 57, 2, 58, 2))
sketch1.addConstraint(Sketcher.Constraint("Tangent", 58, 1, 59, 1))
sketch1.addConstraint(Sketcher.Constraint("Tangent", 59, 2, 60, 2))
sketch1.addConstraint(Sketcher.Constraint("Tangent", 60, 1, 61, 1))
sketch1.addConstraint(Sketcher.Constraint("Tangent", 61, 2, 62, 1))
sketch1.addConstraint(Sketcher.Constraint("Tangent", 62, 2, 63, 1))
sketch1.addConstraint(Sketcher.Constraint("Tangent", 63, 2, 64, 1))
sketch1.addConstraint(Sketcher.Constraint("Tangent", 64, 2, 65, 1))
sketch1.addConstraint(Sketcher.Constraint("Coincident", 65, 2, 66, 1))
sketch1.addConstraint(Sketcher.Constraint("Coincident", 66, 2, 67, 1))
sketch1.addConstraint(Sketcher.Constraint("Coincident", 67, 2, 68, 1))
sketch1.addConstraint(Sketcher.Constraint("Tangent", 68, 2, 69, 1))
sketch1.addConstraint(Sketcher.Constraint("Tangent", 69, 2, 70, 1))
sketch1.addConstraint(Sketcher.Constraint("Tangent", 70, 2, 71, 1))
sketch1.addConstraint(Sketcher.Constraint("Tangent", 71, 2, 72, 1))
sketch1.addConstraint(Sketcher.Constraint("Tangent", 72, 2, 73, 2))
sketch1.addConstraint(Sketcher.Constraint("Tangent", 73, 1, 74, 1))
sketch1.addConstraint(Sketcher.Constraint("Tangent", 74, 2, 75, 2))
sketch1.addConstraint(Sketcher.Constraint("Tangent", 75, 1, 76, 1))
sketch1.addConstraint(Sketcher.Constraint("Tangent", 76, 2, 77, 2))
sketch1.addConstraint(Sketcher.Constraint("Tangent", 77, 1, 78, 1))
sketch1.addConstraint(Sketcher.Constraint("Tangent", 78, 2, 79, 2))
sketch1.addConstraint(Sketcher.Constraint("Tangent", 79, 1, 80, 1))
sketch1.addConstraint(Sketcher.Constraint("Tangent", 80, 2, 81, 2))
sketch1.addConstraint(Sketcher.Constraint("Tangent", 81, 1, 82, 1))
sketch1.addConstraint(Sketcher.Constraint("Tangent", 82, 2, 83, 1))
sketch1.addConstraint(Sketcher.Constraint("Tangent", 83, 2, 0, 1))
sketch1.addConstraint(Sketcher.Constraint("Vertical", 0))
sketch1.addConstraint(Sketcher.Constraint("Vertical", 7))
sketch1.addConstraint(Sketcher.Constraint("Horizontal", 9))
sketch1.addConstraint(Sketcher.Constraint("Vertical", 11))
sketch1.addConstraint(Sketcher.Constraint("Horizontal", 13))
sketch1.addConstraint(Sketcher.Constraint("Vertical", 15))
sketch1.addConstraint(Sketcher.Constraint("Horizontal", 17))
sketch1.addConstraint(Sketcher.Constraint("Vertical", 19))
sketch1.addConstraint(Sketcher.Constraint("Horizontal", 21))
sketch1.addConstraint(Sketcher.Constraint("Horizontal", 28))
sketch1.addConstraint(Sketcher.Constraint("Vertical", 30))
sketch1.addConstraint(Sketcher.Constraint("Horizontal", 32))
sketch1.addConstraint(Sketcher.Constraint("Vertical", 34))
sketch1.addConstraint(Sketcher.Constraint("Horizontal", 36))
sketch1.addConstraint(Sketcher.Constraint("Vertical", 38))
sketch1.addConstraint(Sketcher.Constraint("Horizontal", 40))
sketch1.addConstraint(Sketcher.Constraint("Vertical", 42))
sketch1.addConstraint(Sketcher.Constraint("Vertical", 49))
sketch1.addConstraint(Sketcher.Constraint("Horizontal", 51))
sketch1.addConstraint(Sketcher.Constraint("Vertical", 53))
sketch1.addConstraint(Sketcher.Constraint("Horizontal", 55))
sketch1.addConstraint(Sketcher.Constraint("Vertical", 57))
sketch1.addConstraint(Sketcher.Constraint("Horizontal", 59))
sketch1.addConstraint(Sketcher.Constraint("Vertical", 61))
sketch1.addConstraint(Sketcher.Constraint("Horizontal", 63))
sketch1.addConstraint(Sketcher.Constraint("Horizontal", 70))
sketch1.addConstraint(Sketcher.Constraint("Vertical", 72))
sketch1.addConstraint(Sketcher.Constraint("Horizontal", 74))
sketch1.addConstraint(Sketcher.Constraint("Vertical", 76))
sketch1.addConstraint(Sketcher.Constraint("Horizontal", 78))
sketch1.addConstraint(Sketcher.Constraint("Vertical", 80))
sketch1.addConstraint(Sketcher.Constraint("Horizontal", 82))
sketch1.addConstraint(Sketcher.Constraint("Coincident", 87, 3, -1, 1))
sketch1.addConstraint(Sketcher.Constraint("Coincident", 5, 3, 2, 3))
sketch1.addConstraint(Sketcher.Constraint("Coincident", 26, 3, 23, 3))
sketch1.addConstraint(Sketcher.Constraint("Coincident", 47, 3, 44, 3))
sketch1.addConstraint(Sketcher.Constraint("Coincident", 68, 3, 65, 3))
sketch1.addConstraint(Sketcher.Constraint("Equal", 2, 5))
sketch1.addConstraint(Sketcher.Constraint("Equal", 1, 6))
sketch1.addConstraint(Sketcher.Constraint("Equal", 6, 8))
sketch1.addConstraint(Sketcher.Constraint("Equal", 8, 10))
sketch1.addConstraint(Sketcher.Constraint("Equal", 10, 12))
sketch1.addConstraint(Sketcher.Constraint("Equal", 12, 14))
sketch1.addConstraint(Sketcher.Constraint("Equal", 14, 16))
sketch1.addConstraint(Sketcher.Constraint("Equal", 16, 18))
sketch1.addConstraint(Sketcher.Constraint("Equal", 18, 20))
sketch1.addConstraint(Sketcher.Constraint("Equal", 20, 22))
sketch1.addConstraint(Sketcher.Constraint("Equal", 5, 23))
sketch1.addConstraint(Sketcher.Constraint("Equal", 23, 26))
sketch1.addConstraint(Sketcher.Constraint("Equal", 22, 27))
sketch1.addConstraint(Sketcher.Constraint("Equal", 27, 29))
sketch1.addConstraint(Sketcher.Constraint("Equal", 29, 31))
sketch1.addConstraint(Sketcher.Constraint("Equal", 31, 33))
sketch1.addConstraint(Sketcher.Constraint("Equal", 33, 35))
sketch1.addConstraint(Sketcher.Constraint("Equal", 35, 37))
sketch1.addConstraint(Sketcher.Constraint("Equal", 37, 39))
sketch1.addConstraint(Sketcher.Constraint("Equal", 39, 41))
sketch1.addConstraint(Sketcher.Constraint("Equal", 41, 43))
sketch1.addConstraint(Sketcher.Constraint("Equal", 26, 44))
sketch1.addConstraint(Sketcher.Constraint("Equal", 44, 47))
sketch1.addConstraint(Sketcher.Constraint("Equal", 43, 48))
sketch1.addConstraint(Sketcher.Constraint("Equal", 48, 50))
sketch1.addConstraint(Sketcher.Constraint("Equal", 50, 52))
sketch1.addConstraint(Sketcher.Constraint("Equal", 52, 54))
sketch1.addConstraint(Sketcher.Constraint("Equal", 54, 56))
sketch1.addConstraint(Sketcher.Constraint("Equal", 56, 58))
sketch1.addConstraint(Sketcher.Constraint("Equal", 58, 60))
sketch1.addConstraint(Sketcher.Constraint("Equal", 60, 62))
sketch1.addConstraint(Sketcher.Constraint("Equal", 62, 64))
sketch1.addConstraint(Sketcher.Constraint("Equal", 47, 65))
sketch1.addConstraint(Sketcher.Constraint("Equal", 65, 68))
sketch1.addConstraint(Sketcher.Constraint("Equal", 64, 69))
sketch1.addConstraint(Sketcher.Constraint("Equal", 69, 71))
sketch1.addConstraint(Sketcher.Constraint("Equal", 71, 73))
sketch1.addConstraint(Sketcher.Constraint("Equal", 73, 75))
sketch1.addConstraint(Sketcher.Constraint("Equal", 75, 77))
sketch1.addConstraint(Sketcher.Constraint("Equal", 77, 79))
sketch1.addConstraint(Sketcher.Constraint("Equal", 79, 81))
sketch1.addConstraint(Sketcher.Constraint("Equal", 81, 83))
sketch1.addConstraint(Sketcher.Constraint("Equal", 84, 85))
sketch1.addConstraint(Sketcher.Constraint("Equal", 85, 86))
sketch1.addConstraint(Sketcher.Constraint("Equal", 86, 88))
sketch1.addConstraint(Sketcher.Constraint("Symmetric", 1, 3, 43, 3, -1, 1))
sketch1.addConstraint(Sketcher.Constraint("Symmetric", 6, 3, 48, 3, -1, 1))
sketch1.addConstraint(Sketcher.Constraint("Symmetric", 10, 3, 52, 3, -1, 1))
sketch1.addConstraint(Sketcher.Constraint("Symmetric", 14, 3, 56, 3, -1, 1))
sketch1.addConstraint(Sketcher.Constraint("Symmetric", 18, 3, 60, 3, -1, 1))
sketch1.addConstraint(Sketcher.Constraint("Symmetric", 22, 3, 64, 3, -1, 1))
sketch1.addConstraint(Sketcher.Constraint("Symmetric", 27, 3, 69, 3, -1, 1))
sketch1.addConstraint(Sketcher.Constraint("Symmetric", 31, 3, 73, 3, -1, 1))
sketch1.addConstraint(Sketcher.Constraint("Symmetric", 35, 3, 77, 3, -1, 1))
sketch1.addConstraint(Sketcher.Constraint("Symmetric", 39, 3, 81, 3, -1, 1))
sketch1.addConstraint(Sketcher.Constraint("Symmetric", 85, 3, 86, 3, -1, 1))
sketch1.addConstraint(Sketcher.Constraint("Symmetric", 84, 3, 88, 3, -1, 1))
sketch1.addConstraint(Sketcher.Constraint("Symmetric", 3, 2, 45, 2, -1, 1))
sketch1.addConstraint(Sketcher.Constraint("Symmetric", 24, 2, 66, 2, -1, 1))
sketch1.addConstraint(Sketcher.Constraint("Symmetric", 1, 3, 6, 3, -2))
sketch1.addConstraint(Sketcher.Constraint("Symmetric", 39, 3, 52, 3, -2))
sketch1.addConstraint(Sketcher.Constraint("Symmetric", 35, 3, 56, 3, -2))
sketch1.addConstraint(Sketcher.Constraint("Symmetric", 31, 3, 60, 3, -2))
sketch1.addConstraint(Sketcher.Constraint("Symmetric", 27, 3, 64, 3, -2))
sketch1.addConstraint(Sketcher.Constraint("Symmetric", 84, 3, 85, 3, -2))
sketch1.addConstraint(Sketcher.Constraint("PointOnObject", 3, 2, -2))
sketch1.addConstraint(Sketcher.Constraint("PointOnObject", 24, 2, -1))
sketch1.addConstraint(Sketcher.Constraint("Perpendicular", 3, 4))
sketch1.addConstraint(Sketcher.Constraint("Parallel", 4, 24))
sketch1.addConstraint(Sketcher.Constraint("Perpendicular", 24, 25))
sketch1.addConstraint(Sketcher.Constraint("Parallel", 25, 45))
sketch1.addConstraint(Sketcher.Constraint("Perpendicular", 45, 46))
sketch1.addConstraint(Sketcher.Constraint("Parallel", 46, 66))
sketch1.addConstraint(Sketcher.Constraint("Perpendicular", 66, 67))
sketch1.addConstraint(Sketcher.Constraint("Horizontal", 2, 2, 4, 2))
sketch1.addConstraint(Sketcher.Constraint("Equal", 9, 17))
sketch1.addConstraint(Sketcher.Constraint("Equal", 70, 0))
sketch1.addConstraint(Sketcher.Constraint("Equal", 82, 11))
sketch1.addConstraint(Sketcher.Constraint("Equal", 78, 15))
sketch1.addConstraint(Sketcher.Constraint("Equal", 11, 19))
sketch1.addConstraint(Sketcher.Constraint("Equal", 4, 24))
sketch1.addConstraint(Sketcher.Constraint("Diameter", 84, 4.0))
sketch1.addConstraint(Sketcher.Constraint("Diameter", 87, 4.3))
sketch1.addConstraint(Sketcher.Constraint("Radius", 1, 0.3))
sketch1.addConstraint(Sketcher.Constraint("DistanceX", 9, 1, 9, 2, 0.9))
sketch1.addConstraint(Sketcher.Constraint("DistanceX", -1, 1, 84, 3, 7.0))
sketch1.addConstraint(Sketcher.Constraint("DistanceY", -1, 1, 84, 3, 7.0))
sketch1.addConstraint(Sketcher.Constraint("DistanceY", 3, 2, -1, 1, 3.0))
sketch1.addConstraint(Sketcher.Constraint("DistanceY", 12, 1, -1, 1, 10.0))
sketch1.addConstraint(Sketcher.Constraint("DistanceX", 14, 1, -1, 1, 10.0))
sketch1.addConstraint(Sketcher.Constraint("DistanceX", 13, 2, 13, 1, 6.75))
sketch1.addConstraint(Sketcher.Constraint("Radius", 2, 6.490833))
sketch1.addConstraint(Sketcher.Constraint("DistanceX", 21, 1, 21, 2, 3.257251))
sketch1.setExpression("Constraints[202]", "Params.sketch1_diameter")
sketch1.setExpression("Constraints[203]", "Params.sketch1_diameter2")
sketch1.setExpression("Constraints[204]", "Params.sketch1_radius")
sketch1.setExpression("Constraints[205]", "Params.sketch1_width")
sketch1.setExpression("Constraints[211]", "Params.sketch1_width2")
pad1 = body.newObject("PartDesign::Pad", "Pad")
pad1.Profile = sketch1
pad1.setExpression("Length", "Params.pad1_length")
pad1.Reversed = True

doc.recompute()
